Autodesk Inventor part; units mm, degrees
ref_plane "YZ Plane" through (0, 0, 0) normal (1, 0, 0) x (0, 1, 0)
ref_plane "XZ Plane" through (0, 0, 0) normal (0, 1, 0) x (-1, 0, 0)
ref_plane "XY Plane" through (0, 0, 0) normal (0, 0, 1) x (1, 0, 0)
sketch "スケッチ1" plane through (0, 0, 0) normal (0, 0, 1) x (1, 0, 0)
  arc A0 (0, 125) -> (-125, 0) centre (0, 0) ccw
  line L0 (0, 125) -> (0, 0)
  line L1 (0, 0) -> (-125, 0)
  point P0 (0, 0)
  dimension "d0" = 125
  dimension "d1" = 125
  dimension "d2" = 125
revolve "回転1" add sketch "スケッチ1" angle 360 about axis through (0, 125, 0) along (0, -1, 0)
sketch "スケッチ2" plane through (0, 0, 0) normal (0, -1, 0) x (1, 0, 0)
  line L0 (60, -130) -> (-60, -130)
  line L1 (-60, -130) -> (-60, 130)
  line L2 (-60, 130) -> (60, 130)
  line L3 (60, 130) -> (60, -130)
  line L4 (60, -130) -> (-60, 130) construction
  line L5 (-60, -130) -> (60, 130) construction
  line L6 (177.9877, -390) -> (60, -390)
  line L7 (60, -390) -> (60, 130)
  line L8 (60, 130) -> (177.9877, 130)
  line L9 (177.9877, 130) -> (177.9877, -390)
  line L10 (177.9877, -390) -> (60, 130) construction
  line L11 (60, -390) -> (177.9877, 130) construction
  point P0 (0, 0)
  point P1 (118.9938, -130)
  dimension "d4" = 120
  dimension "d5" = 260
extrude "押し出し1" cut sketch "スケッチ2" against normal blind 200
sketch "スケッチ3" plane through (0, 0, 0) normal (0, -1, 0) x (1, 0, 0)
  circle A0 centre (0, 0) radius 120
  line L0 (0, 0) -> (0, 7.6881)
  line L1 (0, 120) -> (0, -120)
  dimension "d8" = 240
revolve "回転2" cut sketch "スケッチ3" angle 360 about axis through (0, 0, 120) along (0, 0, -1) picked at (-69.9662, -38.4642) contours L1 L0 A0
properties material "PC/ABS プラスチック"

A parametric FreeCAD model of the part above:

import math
import FreeCAD as App
import Part
import Sketcher

V = App.Vector

doc = App.newDocument("Part")
body = doc.addObject("PartDesign::Body", "Body")

# Sketch on XY plane
sketch1 = doc.addObject("Sketcher::SketchObject", "Sketch")
body.addObject(sketch1)
sketch1.AttachmentSupport = (doc.XY_Plane, [""])
sketch1.MapMode = "FlatFace"
sketch1.addGeometry([
    Part.LineSegment(V(0, 0, 0), V(0, 125, 0)),
    Part.ArcOfCircle(Part.Circle(V(0, 0, 0), V(0, 0, 1), 125), math.radians(90), math.radians(180)),
    Part.LineSegment(V(-125, 0, 0), V(0, 0, 0)),
], False)
sketch1.addConstraint([
    Sketcher.Constraint("Coincident", 0, 2, 1, 1),
    Sketcher.Constraint("Coincident", 1, 2, 2, 1),
    Sketcher.Constraint("Coincident", 2, 2, 0, 1),
    Sketcher.Constraint("Vertical", 0),
    Sketcher.Constraint("Horizontal", 2),
    Sketcher.Constraint("Coincident", 1, 3, -1, 1),
    Sketcher.Constraint("Coincident", 2, 2, -1, 1),
    Sketcher.Constraint("Radius", 1, 125.0),
])
revolution = doc.addObject("PartDesign::Revolution", "Revolution")
body.addObject(revolution)
revolution.Profile = sketch1
revolution.ReferenceAxis = (sketch1, ["V_Axis"])
revolution.Angle = 360

# Sketch on XZ plane
sketch2 = doc.addObject("Sketcher::SketchObject", "Sketch001")
body.addObject(sketch2)
sketch2.AttachmentSupport = (doc.XZ_Plane, [""])
sketch2.MapMode = "FlatFace"
sketch2.addGeometry([
    Part.LineSegment(V(-60, -130, 0), V(60, -130, 0)),  # 0
    Part.LineSegment(V(60, -130, 0), V(60, -390, 0)),  # 1
    Part.LineSegment(V(60, -390, 0), V(178, -390, 0)),  # 2
    Part.LineSegment(V(178, -390, 0), V(178, 130, 0)),  # 3
    Part.LineSegment(V(178, 130, 0), V(-60, 130, 0)),  # 4
    Part.LineSegment(V(-60, 130, 0), V(-60, -130, 0)),  # 5
], False)
sketch2.addConstraint([
    Sketcher.Constraint("Coincident", 0, 2, 1, 1),
    Sketcher.Constraint("Coincident", 1, 2, 2, 1),
    Sketcher.Constraint("Coincident", 2, 2, 3, 1),
    Sketcher.Constraint("Coincident", 3, 2, 4, 1),
    Sketcher.Constraint("Coincident", 4, 2, 5, 1),
    Sketcher.Constraint("Coincident", 5, 2, 0, 1),
    Sketcher.Constraint("Horizontal", 0),
    Sketcher.Constraint("Vertical", 1),
    Sketcher.Constraint("Horizontal", 2),
    Sketcher.Constraint("Vertical", 3),
    Sketcher.Constraint("Horizontal", 4),
    Sketcher.Constraint("Vertical", 5),
    Sketcher.Constraint("Symmetric", 0, 2, 4, 2, -1, 1),
    Sketcher.Constraint("Equal", 1, 5),
    Sketcher.Constraint("DistanceX", 0, 1, 0, 2, 120.0),
    Sketcher.Constraint("DistanceY", 1, 2, 1, 1, 260.0),
    Sketcher.Constraint("DistanceX", 2, 1, 2, 2, 117.9877),
])
pocket1 = doc.addObject("PartDesign::Pocket", "Pocket")
body.addObject(pocket1)
pocket1.Profile = sketch2
pocket1.Length = 200

# Sketch on XZ plane
sketch3 = doc.addObject("Sketcher::SketchObject", "Sketch002")
body.addObject(sketch3)
sketch3.AttachmentSupport = (doc.XZ_Plane, [""])
sketch3.MapMode = "FlatFace"
sketch3.addGeometry([
    Part.LineSegment(V(0, -120, 0), V(0, 120, 0)),
    Part.ArcOfCircle(Part.Circle(V(0, 0, 0), V(0, 0, 1), 120), math.radians(90), math.radians(270)),
], False)
sketch3.addConstraint([
    Sketcher.Constraint("Coincident", 0, 1, 1, 2),
    Sketcher.Constraint("Coincident", 1, 1, 0, 2),
    Sketcher.Constraint("Vertical", 0),
    Sketcher.Constraint("Coincident", 1, 3, -1, 1),
    Sketcher.Constraint("PointOnObject", 0, 1, -2),
    Sketcher.Constraint("Radius", 1, 120.0),
])
groove = doc.addObject("PartDesign::Groove", "Groove")
body.addObject(groove)
groove.Profile = sketch3
groove.ReferenceAxis = (sketch3, ["V_Axis"])
groove.Angle = 360

doc.recompute()
